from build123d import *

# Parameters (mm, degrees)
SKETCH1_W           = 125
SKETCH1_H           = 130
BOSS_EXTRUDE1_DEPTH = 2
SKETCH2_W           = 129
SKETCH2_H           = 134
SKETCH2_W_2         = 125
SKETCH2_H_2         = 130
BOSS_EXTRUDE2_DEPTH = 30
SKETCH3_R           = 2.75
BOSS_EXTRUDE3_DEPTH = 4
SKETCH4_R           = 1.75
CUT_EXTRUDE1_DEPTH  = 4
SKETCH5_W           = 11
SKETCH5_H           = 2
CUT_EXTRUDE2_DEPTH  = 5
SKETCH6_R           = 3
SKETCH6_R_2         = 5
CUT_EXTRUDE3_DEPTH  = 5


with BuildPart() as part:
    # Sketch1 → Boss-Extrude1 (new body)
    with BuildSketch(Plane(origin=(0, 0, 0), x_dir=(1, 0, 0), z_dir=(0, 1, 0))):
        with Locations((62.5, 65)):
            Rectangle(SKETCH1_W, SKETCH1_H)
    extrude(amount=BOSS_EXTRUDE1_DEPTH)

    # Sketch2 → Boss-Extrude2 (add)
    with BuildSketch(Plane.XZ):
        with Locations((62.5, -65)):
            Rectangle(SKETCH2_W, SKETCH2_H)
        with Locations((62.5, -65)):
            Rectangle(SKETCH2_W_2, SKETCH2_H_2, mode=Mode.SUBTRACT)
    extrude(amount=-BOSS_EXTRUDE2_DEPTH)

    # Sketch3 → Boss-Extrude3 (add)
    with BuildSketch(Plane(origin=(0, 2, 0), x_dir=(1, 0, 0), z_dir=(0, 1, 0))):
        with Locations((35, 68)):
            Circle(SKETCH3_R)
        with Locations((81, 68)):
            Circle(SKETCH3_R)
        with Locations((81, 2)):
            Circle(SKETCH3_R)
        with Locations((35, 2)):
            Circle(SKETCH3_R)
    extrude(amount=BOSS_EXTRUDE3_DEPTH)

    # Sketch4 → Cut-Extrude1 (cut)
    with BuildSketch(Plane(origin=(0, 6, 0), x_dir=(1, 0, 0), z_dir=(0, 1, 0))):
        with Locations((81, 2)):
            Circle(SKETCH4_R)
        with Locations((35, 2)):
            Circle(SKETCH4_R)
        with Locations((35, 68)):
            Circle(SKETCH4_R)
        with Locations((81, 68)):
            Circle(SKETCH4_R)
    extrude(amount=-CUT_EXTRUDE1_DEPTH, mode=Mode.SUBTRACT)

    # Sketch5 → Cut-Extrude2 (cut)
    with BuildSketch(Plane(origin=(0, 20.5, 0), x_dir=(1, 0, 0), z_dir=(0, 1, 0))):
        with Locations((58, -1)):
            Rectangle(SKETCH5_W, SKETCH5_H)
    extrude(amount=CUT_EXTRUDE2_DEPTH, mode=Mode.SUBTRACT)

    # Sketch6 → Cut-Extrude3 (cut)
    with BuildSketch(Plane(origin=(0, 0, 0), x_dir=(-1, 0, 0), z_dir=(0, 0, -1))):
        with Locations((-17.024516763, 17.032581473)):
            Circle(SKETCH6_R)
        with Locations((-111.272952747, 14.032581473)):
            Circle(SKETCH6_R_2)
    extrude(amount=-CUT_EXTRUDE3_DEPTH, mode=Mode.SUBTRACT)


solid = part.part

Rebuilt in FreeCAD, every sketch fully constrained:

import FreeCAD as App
import Part
import Sketcher


def add_polygon(sketch, points):
    """Adds a closed chain of lines whose ends are joined by coincident constraints."""
    first, n = sketch.GeometryCount, len(points)
    for a, b in zip(points, points[1:] + points[:1]):
        sketch.addGeometry(Part.LineSegment(App.Vector(*a, 0), App.Vector(*b, 0)), False)
    for i in range(n):
        sketch.addConstraint(Sketcher.Constraint("Coincident", first + i, 2, first + (i + 1) % n, 1))

doc = App.newDocument("Part")
body = doc.addObject("PartDesign::Body", "Body")

sketch1 = body.newObject("Sketcher::SketchObject", "Sketch")
sketch1.AttachmentSupport = (doc.getObject("XZ_Plane"), [""])
sketch1.MapMode = "FlatFace"
add_polygon(sketch1, [(0, -130), (0, 0), (125, 0), (125, -130)])
sketch1.addConstraint([
    Sketcher.Constraint("Vertical", 0),
    Sketcher.Constraint("Horizontal", 1),
    Sketcher.Constraint("Vertical", 2),
    Sketcher.Constraint("Horizontal", 3),
    Sketcher.Constraint("Coincident", 0, 2, -1, 1),
    Sketcher.Constraint("DistanceX", 1, 1, 1, 2, 125.0),
    Sketcher.Constraint("DistanceY", 0, 1, 0, 2, 130.0),
])
pad1 = body.newObject("PartDesign::Pad", "Pad")
pad1.Profile = sketch1
pad1.Length = 2
pad1.Reversed = True

sketch2 = body.newObject("Sketcher::SketchObject", "Sketch001")
sketch2.AttachmentSupport = (doc.getObject("XZ_Plane"), [""])
sketch2.MapMode = "FlatFace"
add_polygon(sketch2, [(-2, 2), (-2, -132), (127, -132), (127, 2)])
add_polygon(sketch2, [(125, -130), (0, -130), (0, 0), (125, 0)])
sketch2.addConstraint([
    Sketcher.Constraint("Vertical", 0),
    Sketcher.Constraint("Horizontal", 1),
    Sketcher.Constraint("Vertical", 2),
    Sketcher.Constraint("Horizontal", 3),
    Sketcher.Constraint("Horizontal", 4),
    Sketcher.Constraint("Vertical", 5),
    Sketcher.Constraint("Horizontal", 6),
    Sketcher.Constraint("Vertical", 7),
    Sketcher.Constraint("Coincident", 5, 2, -1, 1),
    Sketcher.Constraint("DistanceX", 1, 1, 1, 2, 129.0),
    Sketcher.Constraint("DistanceX", 4, 2, 4, 1, 125.0),
    Sketcher.Constraint("DistanceY", 0, 2, 0, 1, 134.0),
    Sketcher.Constraint("DistanceY", 5, 1, 5, 2, 130.0),
    Sketcher.Constraint("DistanceX", 0, 2, -1, 1, 2.0),
    Sketcher.Constraint("DistanceY", 0, 2, -1, 1, 132.0),
])
pad2 = body.newObject("PartDesign::Pad", "Pad001")
pad2.Profile = sketch2
pad2.Length = 30
pad2.Reversed = True

sketch3 = body.newObject("Sketcher::SketchObject", "Sketch002")
sketch3.AttachmentSupport = (doc.getObject("XZ_Plane"), [""])
sketch3.MapMode = "FlatFace"
sketch3.AttachmentOffset = App.Placement(App.Vector(0, 0, -2), App.Rotation())
sketch3.addGeometry([
    Part.Circle(App.Vector(35, -68, 0), App.Vector(0, 0, 1), 2.8),
    Part.Circle(App.Vector(81, -68, 0), App.Vector(0, 0, 1), 2.8),
    Part.Circle(App.Vector(81, -2, 0), App.Vector(0, 0, 1), 2.8),
    Part.Circle(App.Vector(35, -2, 0), App.Vector(0, 0, 1), 2.8),
], False)
sketch3.addConstraint([
    Sketcher.Constraint("Equal", 0, 1),
    Sketcher.Constraint("Equal", 1, 2),
    Sketcher.Constraint("Equal", 2, 3),
    Sketcher.Constraint("Horizontal", 0, 3, 1, 3),
    Sketcher.Constraint("Horizontal", 2, 3, 3, 3),
    Sketcher.Constraint("Vertical", 1, 3, 2, 3),
    Sketcher.Constraint("Vertical", 0, 3, 3, 3),
    Sketcher.Constraint("Diameter", 0, 5.5),
    Sketcher.Constraint("DistanceX", -1, 1, 0, 3, 35.0),
    Sketcher.Constraint("DistanceY", 0, 3, -1, 1, 68.0),
    Sketcher.Constraint("DistanceX", -1, 1, 1, 3, 81.0),
    Sketcher.Constraint("DistanceY", 2, 3, -1, 1, 2.0),
])
pad3 = body.newObject("PartDesign::Pad", "Pad002")
pad3.Profile = sketch3
pad3.Length = 4
pad3.Reversed = True

sketch4 = body.newObject("Sketcher::SketchObject", "Sketch003")
sketch4.AttachmentSupport = (doc.getObject("XZ_Plane"), [""])
sketch4.MapMode = "FlatFace"
sketch4.AttachmentOffset = App.Placement(App.Vector(0, 0, -6), App.Rotation())
sketch4.addGeometry([
    Part.Circle(App.Vector(81, -2, 0), App.Vector(0, 0, 1), 1.8),
    Part.Circle(App.Vector(35, -2, 0), App.Vector(0, 0, 1), 1.8),
    Part.Circle(App.Vector(35, -68, 0), App.Vector(0, 0, 1), 1.8),
    Part.Circle(App.Vector(81, -68, 0), App.Vector(0, 0, 1), 1.8),
], False)
sketch4.addConstraint([
    Sketcher.Constraint("Equal", 0, 1),
    Sketcher.Constraint("Equal", 1, 2),
    Sketcher.Constraint("Equal", 2, 3),
    Sketcher.Constraint("Horizontal", 0, 3, 1, 3),
    Sketcher.Constraint("Horizontal", 2, 3, 3, 3),
    Sketcher.Constraint("Vertical", 1, 3, 2, 3),
    Sketcher.Constraint("Vertical", 0, 3, 3, 3),
    Sketcher.Constraint("Diameter", 0, 3.5),
    Sketcher.Constraint("DistanceX", -1, 1, 0, 3, 81.0),
    Sketcher.Constraint("DistanceY", 0, 3, -1, 1, 2.0),
    Sketcher.Constraint("DistanceX", -1, 1, 1, 3, 35.0),
    Sketcher.Constraint("DistanceY", 2, 3, -1, 1, 68.0),
])
pocket1 = body.newObject("PartDesign::Pocket", "Pocket")
pocket1.Profile = sketch4
pocket1.Length = 4
pocket1.Reversed = True

sketch5 = body.newObject("Sketcher::SketchObject", "Sketch004")
sketch5.AttachmentSupport = (doc.getObject("XZ_Plane"), [""])
sketch5.MapMode = "FlatFace"
sketch5.AttachmentOffset = App.Placement(App.Vector(0, 0, -20.5), App.Rotation())
add_polygon(sketch5, [(52.5, 0), (52.5, 2), (63.5, 2), (63.5, 0)])
sketch5.addConstraint([
    Sketcher.Constraint("Vertical", 0),
    Sketcher.Constraint("Horizontal", 1),
    Sketcher.Constraint("Vertical", 2),
    Sketcher.Constraint("Horizontal", 3),
    Sketcher.Constraint("PointOnObject", 2, 2, -1),
    Sketcher.Constraint("DistanceX", 1, 1, 1, 2, 11.0),
    Sketcher.Constraint("DistanceY", 0, 1, 0, 2, 2.0),
    Sketcher.Constraint("DistanceX", -1, 1, 0, 2, 52.5),
])
pocket2 = body.newObject("PartDesign::Pocket", "Pocket001")
pocket2.Profile = sketch5
pocket2.Length = 5

sketch6 = body.newObject("Sketcher::SketchObject", "Sketch005")
sketch6.AttachmentSupport = (doc.getObject("XY_Plane"), [""])
sketch6.MapMode = "FlatFace"
sketch6.addGeometry([
    Part.Circle(App.Vector(17, 17, 0), App.Vector(0, 0, 1), 3),
    Part.Circle(App.Vector(111.3, 14, 0), App.Vector(0, 0, 1), 5),
], False)
sketch6.addConstraint([
    Sketcher.Constraint("Diameter", 0, 6.0),
    Sketcher.Constraint("Diameter", 1, 10.0),
    Sketcher.Constraint("DistanceY", 1, 3, 0, 3, 3.0),
    Sketcher.Constraint("DistanceY", -1, 1, 0, 3, 17.032581),
    Sketcher.Constraint("DistanceX", -1, 1, 0, 3, 17.024517),
    Sketcher.Constraint("DistanceX", -1, 1, 1, 3, 111.272953),
])
pocket3 = body.newObject("PartDesign::Pocket", "Pocket002")
pocket3.Profile = sketch6
pocket3.Length = 5
pocket3.Reversed = True

doc.recompute()
